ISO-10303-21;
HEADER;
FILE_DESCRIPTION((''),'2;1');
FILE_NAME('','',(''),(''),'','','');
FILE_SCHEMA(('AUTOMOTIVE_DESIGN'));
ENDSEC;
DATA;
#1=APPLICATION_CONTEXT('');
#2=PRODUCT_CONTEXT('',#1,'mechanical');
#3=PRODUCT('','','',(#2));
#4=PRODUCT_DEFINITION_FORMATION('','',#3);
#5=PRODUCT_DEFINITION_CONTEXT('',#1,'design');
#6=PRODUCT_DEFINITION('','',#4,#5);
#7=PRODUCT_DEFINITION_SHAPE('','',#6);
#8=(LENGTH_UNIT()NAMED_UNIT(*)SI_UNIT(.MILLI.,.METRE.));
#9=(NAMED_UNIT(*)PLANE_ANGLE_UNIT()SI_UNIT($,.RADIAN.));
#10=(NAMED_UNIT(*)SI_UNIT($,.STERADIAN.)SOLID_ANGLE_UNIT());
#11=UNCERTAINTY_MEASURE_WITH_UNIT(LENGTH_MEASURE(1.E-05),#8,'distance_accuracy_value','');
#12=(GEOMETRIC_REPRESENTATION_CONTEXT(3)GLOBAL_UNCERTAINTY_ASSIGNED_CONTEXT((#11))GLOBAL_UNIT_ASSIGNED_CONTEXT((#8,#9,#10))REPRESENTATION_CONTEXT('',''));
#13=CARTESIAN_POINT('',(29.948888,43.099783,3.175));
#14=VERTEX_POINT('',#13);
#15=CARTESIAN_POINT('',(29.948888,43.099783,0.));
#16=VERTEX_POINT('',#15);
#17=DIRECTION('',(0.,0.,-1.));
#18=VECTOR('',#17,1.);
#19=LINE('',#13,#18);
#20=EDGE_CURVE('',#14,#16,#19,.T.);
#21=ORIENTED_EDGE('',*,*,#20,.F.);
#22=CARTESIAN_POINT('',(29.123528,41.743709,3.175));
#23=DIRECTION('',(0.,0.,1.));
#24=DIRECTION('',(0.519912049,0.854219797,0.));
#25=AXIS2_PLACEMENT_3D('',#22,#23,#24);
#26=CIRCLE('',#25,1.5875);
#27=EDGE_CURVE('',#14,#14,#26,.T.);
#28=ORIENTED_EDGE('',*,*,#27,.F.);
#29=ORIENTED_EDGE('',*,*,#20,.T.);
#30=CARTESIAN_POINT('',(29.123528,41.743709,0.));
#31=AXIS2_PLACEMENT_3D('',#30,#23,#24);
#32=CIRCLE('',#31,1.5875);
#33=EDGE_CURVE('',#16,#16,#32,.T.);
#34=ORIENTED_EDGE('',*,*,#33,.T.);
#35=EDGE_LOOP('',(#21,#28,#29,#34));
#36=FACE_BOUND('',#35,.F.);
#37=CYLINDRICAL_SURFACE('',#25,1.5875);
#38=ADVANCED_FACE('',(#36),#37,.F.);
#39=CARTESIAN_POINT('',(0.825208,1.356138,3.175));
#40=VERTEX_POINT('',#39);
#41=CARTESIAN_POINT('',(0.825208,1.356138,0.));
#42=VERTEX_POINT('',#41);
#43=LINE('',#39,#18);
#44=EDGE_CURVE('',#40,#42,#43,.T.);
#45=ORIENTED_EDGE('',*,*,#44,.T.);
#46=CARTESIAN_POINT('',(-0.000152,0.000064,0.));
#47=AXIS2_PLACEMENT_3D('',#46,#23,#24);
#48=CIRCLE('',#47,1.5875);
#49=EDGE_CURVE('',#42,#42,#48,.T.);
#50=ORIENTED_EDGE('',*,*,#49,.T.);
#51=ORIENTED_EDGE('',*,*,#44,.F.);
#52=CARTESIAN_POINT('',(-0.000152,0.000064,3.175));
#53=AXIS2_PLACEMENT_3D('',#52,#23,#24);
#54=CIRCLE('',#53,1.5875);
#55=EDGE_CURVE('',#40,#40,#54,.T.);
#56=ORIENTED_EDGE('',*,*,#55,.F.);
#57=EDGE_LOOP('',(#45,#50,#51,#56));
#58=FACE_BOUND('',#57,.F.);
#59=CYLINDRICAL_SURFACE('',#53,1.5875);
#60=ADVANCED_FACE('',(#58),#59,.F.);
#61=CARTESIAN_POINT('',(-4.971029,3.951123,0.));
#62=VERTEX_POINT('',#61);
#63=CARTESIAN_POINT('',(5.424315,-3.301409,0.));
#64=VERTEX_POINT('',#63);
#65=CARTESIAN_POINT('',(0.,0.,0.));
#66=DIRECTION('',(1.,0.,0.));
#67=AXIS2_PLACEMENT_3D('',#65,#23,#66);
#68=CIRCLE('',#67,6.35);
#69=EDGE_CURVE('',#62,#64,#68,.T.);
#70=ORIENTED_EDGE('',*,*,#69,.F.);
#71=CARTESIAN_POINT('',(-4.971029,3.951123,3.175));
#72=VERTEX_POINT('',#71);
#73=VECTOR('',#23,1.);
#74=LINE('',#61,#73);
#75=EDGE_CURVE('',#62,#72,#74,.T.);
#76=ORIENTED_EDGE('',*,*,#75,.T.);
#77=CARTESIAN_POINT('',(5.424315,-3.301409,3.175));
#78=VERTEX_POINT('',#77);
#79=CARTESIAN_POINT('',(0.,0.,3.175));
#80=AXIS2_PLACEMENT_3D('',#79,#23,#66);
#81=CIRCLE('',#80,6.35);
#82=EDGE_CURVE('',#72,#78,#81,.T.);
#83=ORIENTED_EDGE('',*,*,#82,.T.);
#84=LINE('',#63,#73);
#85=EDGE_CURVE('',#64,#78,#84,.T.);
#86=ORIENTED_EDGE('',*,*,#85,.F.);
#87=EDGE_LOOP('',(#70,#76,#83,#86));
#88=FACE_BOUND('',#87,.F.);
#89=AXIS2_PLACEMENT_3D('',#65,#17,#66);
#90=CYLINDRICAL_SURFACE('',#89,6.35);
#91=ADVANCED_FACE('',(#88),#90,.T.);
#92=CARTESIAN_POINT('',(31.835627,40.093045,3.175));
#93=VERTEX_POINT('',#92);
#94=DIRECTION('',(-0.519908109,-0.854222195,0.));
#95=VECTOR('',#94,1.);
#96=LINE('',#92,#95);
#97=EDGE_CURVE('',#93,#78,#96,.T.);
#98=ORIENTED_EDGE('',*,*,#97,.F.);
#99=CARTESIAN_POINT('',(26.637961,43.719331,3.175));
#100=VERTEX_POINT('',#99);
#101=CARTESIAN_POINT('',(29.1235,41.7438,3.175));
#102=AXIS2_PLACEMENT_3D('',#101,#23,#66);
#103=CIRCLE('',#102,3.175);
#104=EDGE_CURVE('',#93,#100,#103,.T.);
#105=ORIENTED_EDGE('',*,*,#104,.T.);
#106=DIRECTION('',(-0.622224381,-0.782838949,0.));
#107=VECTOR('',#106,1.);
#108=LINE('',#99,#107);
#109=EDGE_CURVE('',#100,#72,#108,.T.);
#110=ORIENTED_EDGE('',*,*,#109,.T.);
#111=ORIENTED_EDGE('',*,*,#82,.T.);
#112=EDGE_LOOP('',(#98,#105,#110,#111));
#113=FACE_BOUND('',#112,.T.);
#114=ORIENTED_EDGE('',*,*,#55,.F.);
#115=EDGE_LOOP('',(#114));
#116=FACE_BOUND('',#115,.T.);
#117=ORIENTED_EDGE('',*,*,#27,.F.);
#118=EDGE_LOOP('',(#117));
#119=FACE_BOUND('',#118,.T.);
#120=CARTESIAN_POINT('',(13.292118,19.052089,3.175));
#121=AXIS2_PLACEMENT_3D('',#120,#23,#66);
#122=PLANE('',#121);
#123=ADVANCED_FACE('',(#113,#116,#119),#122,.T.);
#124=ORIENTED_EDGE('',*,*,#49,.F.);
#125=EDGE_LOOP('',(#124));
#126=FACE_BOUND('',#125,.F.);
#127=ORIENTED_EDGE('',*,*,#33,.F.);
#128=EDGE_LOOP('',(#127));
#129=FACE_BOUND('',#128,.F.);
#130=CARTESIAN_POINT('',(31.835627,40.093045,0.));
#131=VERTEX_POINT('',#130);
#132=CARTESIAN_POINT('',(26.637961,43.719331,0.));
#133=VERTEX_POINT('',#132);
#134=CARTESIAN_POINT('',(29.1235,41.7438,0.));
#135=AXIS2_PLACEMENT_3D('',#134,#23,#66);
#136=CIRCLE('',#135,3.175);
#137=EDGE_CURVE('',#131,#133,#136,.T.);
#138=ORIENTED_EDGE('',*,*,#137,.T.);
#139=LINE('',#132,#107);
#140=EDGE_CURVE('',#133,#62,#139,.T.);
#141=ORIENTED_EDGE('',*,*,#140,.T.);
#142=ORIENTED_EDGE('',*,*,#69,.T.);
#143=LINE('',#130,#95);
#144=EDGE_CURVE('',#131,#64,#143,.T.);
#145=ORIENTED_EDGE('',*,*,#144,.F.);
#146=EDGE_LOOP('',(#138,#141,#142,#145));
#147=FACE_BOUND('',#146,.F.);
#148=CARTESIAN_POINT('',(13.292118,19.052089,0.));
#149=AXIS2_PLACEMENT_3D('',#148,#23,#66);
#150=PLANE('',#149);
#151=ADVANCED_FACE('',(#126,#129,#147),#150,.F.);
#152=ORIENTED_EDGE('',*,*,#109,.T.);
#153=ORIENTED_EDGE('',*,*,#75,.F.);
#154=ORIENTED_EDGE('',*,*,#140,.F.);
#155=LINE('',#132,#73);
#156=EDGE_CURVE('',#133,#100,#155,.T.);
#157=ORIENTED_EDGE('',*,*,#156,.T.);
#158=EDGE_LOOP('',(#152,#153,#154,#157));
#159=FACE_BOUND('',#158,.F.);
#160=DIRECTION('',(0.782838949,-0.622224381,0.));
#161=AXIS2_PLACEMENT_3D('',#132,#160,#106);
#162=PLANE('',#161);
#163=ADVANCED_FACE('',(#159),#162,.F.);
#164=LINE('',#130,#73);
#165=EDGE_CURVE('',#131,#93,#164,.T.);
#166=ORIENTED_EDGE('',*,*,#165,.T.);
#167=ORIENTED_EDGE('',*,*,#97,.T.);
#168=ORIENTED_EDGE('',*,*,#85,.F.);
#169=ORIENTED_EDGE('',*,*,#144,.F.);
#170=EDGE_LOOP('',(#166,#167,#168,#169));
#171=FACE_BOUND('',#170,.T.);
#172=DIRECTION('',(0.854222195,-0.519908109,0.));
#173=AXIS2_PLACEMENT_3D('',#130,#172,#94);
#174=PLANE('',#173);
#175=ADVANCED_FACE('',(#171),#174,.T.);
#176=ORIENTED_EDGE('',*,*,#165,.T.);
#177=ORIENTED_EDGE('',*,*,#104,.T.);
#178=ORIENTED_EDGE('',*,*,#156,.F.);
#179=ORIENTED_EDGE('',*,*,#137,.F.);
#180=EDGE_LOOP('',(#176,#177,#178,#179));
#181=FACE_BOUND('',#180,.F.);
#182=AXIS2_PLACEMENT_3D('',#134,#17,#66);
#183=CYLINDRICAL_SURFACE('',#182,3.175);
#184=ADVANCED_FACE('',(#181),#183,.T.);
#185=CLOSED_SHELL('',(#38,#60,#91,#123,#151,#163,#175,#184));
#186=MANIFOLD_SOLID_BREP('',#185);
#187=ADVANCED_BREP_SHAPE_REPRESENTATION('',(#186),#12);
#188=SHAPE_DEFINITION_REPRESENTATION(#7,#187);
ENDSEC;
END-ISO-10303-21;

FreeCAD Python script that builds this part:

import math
import FreeCAD as App
import Part
import Sketcher
Q = App.Units.Quantity

doc = App.newDocument("Part")
params = doc.addObject("Spreadsheet::Sheet", "Params")
for row, (alias, value) in enumerate([
    ("sketch1_radius", "0.25 in"),
    ("sketch1_length", "2 in"),
    ("sketch1_radius2", "0.125 in"),
    ("pad1_length", "0.125 in"),
    ("sketch2_diameter", "0.125 in"),
], start=1):
    params.set(f"A{row}", alias)
    params.set(f"B{row}", "=" + value)
    params.setAlias(f"B{row}", alias)

body = doc.addObject("PartDesign::Body", "Body")

# Sketch on XY plane
sketch1 = body.newObject("Sketcher::SketchObject", "Sketch")
sketch1.AttachmentSupport = (doc.getObject("XY_Plane"), [""])
sketch1.MapMode = "FlatFace"
sketch1.addGeometry(Part.ArcOfCircle(Part.Circle(App.Vector(29.1, 41.7, 0), App.Vector(0, 0, 1), 3.2), math.radians(-31), math.radians(142)), False)
sketch1.addGeometry(Part.LineSegment(App.Vector(26.6, 43.7, 0), App.Vector(-5, 4, 0)), False)
sketch1.addGeometry(Part.ArcOfCircle(Part.Circle(App.Vector(0, 0, 0), App.Vector(0, 0, 1), 6.3), math.radians(142), math.radians(329)), False)
sketch1.addGeometry(Part.LineSegment(App.Vector(5.4, -3.3, 0), App.Vector(31.8, 40.1, 0)), False)
sketch1.addConstraint(Sketcher.Constraint("Tangent", 0, 2, 1, 1))
sketch1.addConstraint(Sketcher.Constraint("Tangent", 1, 2, 2, 1))
sketch1.addConstraint(Sketcher.Constraint("Tangent", 2, 2, 3, 1))
sketch1.addConstraint(Sketcher.Constraint("Tangent", 3, 2, 0, 1))
sketch1.addConstraint(Sketcher.Constraint("Coincident", 2, 3, -1, 1))
sketch1.addConstraint(Sketcher.Constraint("Radius", 2, Q("0.25 in")))
sketch1.addConstraint(Sketcher.Constraint("Distance", 1, Q("2 in")))
sketch1.addConstraint(Sketcher.Constraint("Radius", 0, Q("0.125 in")))
sketch1.addConstraint(Sketcher.Constraint("DistanceX", -1, 1, 3, 2, 31.8357))
sketch1.setExpression("Constraints[5]", "Params.sketch1_radius")
sketch1.setExpression("Constraints[6]", "Params.sketch1_length")
sketch1.setExpression("Constraints[7]", "Params.sketch1_radius2")
pad1 = body.newObject("PartDesign::Pad", "Pad")
pad1.Profile = sketch1
pad1.setExpression("Length", "Params.pad1_length")

# Sketch on XY plane
sketch2 = body.newObject("Sketcher::SketchObject", "Sketch001")
sketch2.AttachmentSupport = (doc.getObject("XY_Plane"), [""])
sketch2.MapMode = "FlatFace"
sketch2.AttachmentOffset = App.Placement(App.Vector(0, 0, 0.125 * 25.4), App.Rotation())
sketch2.addGeometry(Part.Circle(App.Vector(29.1, 41.7, 0), App.Vector(0, 0, 1), 1.6), False)
sketch2.addGeometry(Part.Circle(App.Vector(0, 0, 0), App.Vector(0, 0, 1), 1.6), False)
sketch2.addConstraint(Sketcher.Constraint("Coincident", 1, 3, -1, 1))
sketch2.addConstraint(Sketcher.Constraint("Equal", 0, 1))
sketch2.addConstraint(Sketcher.Constraint("Diameter", 0, Q("0.125 in")))
sketch2.addConstraint(Sketcher.Constraint("DistanceX", -1, 1, 0, 3, Q("1.1466 in")))
sketch2.addConstraint(Sketcher.Constraint("DistanceY", -1, 1, 0, 3, 41.7437))
sketch2.setExpression("Constraints[2]", "Params.sketch2_diameter")
pocket1 = body.newObject("PartDesign::Pocket", "Pocket")
pocket1.Profile = sketch2
pocket1.Type = "ThroughAll"

doc.recompute()
